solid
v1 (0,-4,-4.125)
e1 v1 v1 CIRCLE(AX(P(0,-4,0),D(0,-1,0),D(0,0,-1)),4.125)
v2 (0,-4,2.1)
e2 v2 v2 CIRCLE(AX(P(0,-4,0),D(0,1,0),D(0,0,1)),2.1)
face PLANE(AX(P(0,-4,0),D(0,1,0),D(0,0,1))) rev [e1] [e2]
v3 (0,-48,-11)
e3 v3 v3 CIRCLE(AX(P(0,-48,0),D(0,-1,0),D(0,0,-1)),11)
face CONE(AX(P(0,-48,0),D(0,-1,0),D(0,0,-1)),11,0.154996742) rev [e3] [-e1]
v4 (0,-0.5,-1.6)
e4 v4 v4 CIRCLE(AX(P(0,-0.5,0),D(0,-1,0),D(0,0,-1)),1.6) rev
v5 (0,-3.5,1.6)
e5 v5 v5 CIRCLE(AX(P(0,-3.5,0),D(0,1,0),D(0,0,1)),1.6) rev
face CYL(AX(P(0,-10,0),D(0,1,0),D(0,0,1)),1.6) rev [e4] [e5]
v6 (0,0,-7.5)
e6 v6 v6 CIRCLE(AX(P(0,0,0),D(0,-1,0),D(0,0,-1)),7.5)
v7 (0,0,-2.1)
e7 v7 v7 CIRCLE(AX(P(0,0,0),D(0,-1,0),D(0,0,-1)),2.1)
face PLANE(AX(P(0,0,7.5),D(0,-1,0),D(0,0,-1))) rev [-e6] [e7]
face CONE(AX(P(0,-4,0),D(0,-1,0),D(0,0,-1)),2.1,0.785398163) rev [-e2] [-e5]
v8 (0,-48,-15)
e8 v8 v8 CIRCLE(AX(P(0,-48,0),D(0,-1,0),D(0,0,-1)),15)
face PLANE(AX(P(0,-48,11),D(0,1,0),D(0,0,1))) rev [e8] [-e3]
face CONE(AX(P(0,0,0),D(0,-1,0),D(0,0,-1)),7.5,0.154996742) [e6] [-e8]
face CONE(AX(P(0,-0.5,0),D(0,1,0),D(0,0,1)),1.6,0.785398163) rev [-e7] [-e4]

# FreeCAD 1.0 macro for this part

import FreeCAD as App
import Part
import Sketcher
from FreeCAD import Vector
Q = App.Units.Quantity


def edges_at(feature, points):
    """Names of the edges that pass closest to the given points."""
    edges = feature.Shape.Edges
    near = lambda p: min(range(len(edges)), key=lambda i: edges[i].distToShape(Part.Vertex(*p))[0])
    return sorted({f"Edge{near(p) + 1}" for p in points})

doc = App.newDocument("Part")
body = doc.addObject("PartDesign::Body", "Body")

sketch1 = body.newObject("Sketcher::SketchObject", "Sketch")
sketch1.AttachmentSupport = (doc.getObject("YZ_Plane"), [""])
sketch1.MapMode = "FlatFace"
sketch1.addGeometry([
    Part.LineSegment(Vector(0, 0, 0), Vector(0, 7.5, 0)),
    Part.LineSegment(Vector(0, 7.5, 0), Vector(-48, 15, 0)),
    Part.LineSegment(Vector(-48, 15, 0), Vector(-48, 11, 0)),
    Part.LineSegment(Vector(-48, 11, 0), Vector(-4, 4.125, 0)),
    Part.LineSegment(Vector(-4, 4.125, 0), Vector(-4, 0, 0)),
    Part.LineSegment(Vector(-4, 0, 0), Vector(0, 0, 0)),
], False)
sketch1.addConstraint([
    Sketcher.Constraint("Coincident", 0, 2, 1, 1),
    Sketcher.Constraint("Coincident", 1, 2, 2, 1),
    Sketcher.Constraint("Coincident", 2, 2, 3, 1),
    Sketcher.Constraint("Coincident", 3, 2, 4, 1),
    Sketcher.Constraint("Coincident", 4, 2, 5, 1),
    Sketcher.Constraint("Coincident", 5, 2, 0, 1),
    Sketcher.Constraint("Vertical", 0),
    Sketcher.Constraint("Vertical", 2),
    Sketcher.Constraint("Vertical", 4),
    Sketcher.Constraint("Horizontal", 5),
    Sketcher.Constraint("Coincident", 5, 2, -1, 1),
    Sketcher.Constraint("Parallel", 1, 3),
    Sketcher.Constraint("Equal", 5, 2),
    Sketcher.Constraint("DistanceX", 5, 1, 5, 2, Q("4 mm")),
    Sketcher.Constraint("DistanceY", 0, 1, 0, 2, Q("7.5 mm")),
    Sketcher.Constraint("DistanceX", 1, 2, -1, 1, Q("48 mm")),
    Sketcher.Constraint("DistanceY", -1, 1, 1, 2, Q("15 mm")),
])
revolution = body.newObject("PartDesign::Revolution", "Revolution")
revolution.Profile = sketch1
revolution.ReferenceAxis = (sketch1, ["H_Axis"])
revolution.Angle = 360

sketch2 = body.newObject("Sketcher::SketchObject", "Sketch001")
sketch2.AttachmentSupport = (doc.getObject("XZ_Plane"), [""])
sketch2.MapMode = "FlatFace"
sketch2.addGeometry(Part.Circle(Vector(0, 0, 0), Vector(0, 0, 1), 1.6), False)
sketch2.addConstraint([
    Sketcher.Constraint("Coincident", 0, 3, -1, 1),
    Sketcher.Constraint("Diameter", 0, Q("3.2 mm")),
])
pocket1 = body.newObject("PartDesign::Pocket", "Pocket")
pocket1.Profile = sketch2
pocket1.Length = 10
pocket1.Reversed = True
doc.recompute()

chamfer = body.newObject("PartDesign::Chamfer", "Chamfer")
chamfer.Base = (pocket1, edges_at(pocket1, [(0, -4, -1.6), (0, 0, -1.6)]))
chamfer.Size = 0.5

doc.recompute()
